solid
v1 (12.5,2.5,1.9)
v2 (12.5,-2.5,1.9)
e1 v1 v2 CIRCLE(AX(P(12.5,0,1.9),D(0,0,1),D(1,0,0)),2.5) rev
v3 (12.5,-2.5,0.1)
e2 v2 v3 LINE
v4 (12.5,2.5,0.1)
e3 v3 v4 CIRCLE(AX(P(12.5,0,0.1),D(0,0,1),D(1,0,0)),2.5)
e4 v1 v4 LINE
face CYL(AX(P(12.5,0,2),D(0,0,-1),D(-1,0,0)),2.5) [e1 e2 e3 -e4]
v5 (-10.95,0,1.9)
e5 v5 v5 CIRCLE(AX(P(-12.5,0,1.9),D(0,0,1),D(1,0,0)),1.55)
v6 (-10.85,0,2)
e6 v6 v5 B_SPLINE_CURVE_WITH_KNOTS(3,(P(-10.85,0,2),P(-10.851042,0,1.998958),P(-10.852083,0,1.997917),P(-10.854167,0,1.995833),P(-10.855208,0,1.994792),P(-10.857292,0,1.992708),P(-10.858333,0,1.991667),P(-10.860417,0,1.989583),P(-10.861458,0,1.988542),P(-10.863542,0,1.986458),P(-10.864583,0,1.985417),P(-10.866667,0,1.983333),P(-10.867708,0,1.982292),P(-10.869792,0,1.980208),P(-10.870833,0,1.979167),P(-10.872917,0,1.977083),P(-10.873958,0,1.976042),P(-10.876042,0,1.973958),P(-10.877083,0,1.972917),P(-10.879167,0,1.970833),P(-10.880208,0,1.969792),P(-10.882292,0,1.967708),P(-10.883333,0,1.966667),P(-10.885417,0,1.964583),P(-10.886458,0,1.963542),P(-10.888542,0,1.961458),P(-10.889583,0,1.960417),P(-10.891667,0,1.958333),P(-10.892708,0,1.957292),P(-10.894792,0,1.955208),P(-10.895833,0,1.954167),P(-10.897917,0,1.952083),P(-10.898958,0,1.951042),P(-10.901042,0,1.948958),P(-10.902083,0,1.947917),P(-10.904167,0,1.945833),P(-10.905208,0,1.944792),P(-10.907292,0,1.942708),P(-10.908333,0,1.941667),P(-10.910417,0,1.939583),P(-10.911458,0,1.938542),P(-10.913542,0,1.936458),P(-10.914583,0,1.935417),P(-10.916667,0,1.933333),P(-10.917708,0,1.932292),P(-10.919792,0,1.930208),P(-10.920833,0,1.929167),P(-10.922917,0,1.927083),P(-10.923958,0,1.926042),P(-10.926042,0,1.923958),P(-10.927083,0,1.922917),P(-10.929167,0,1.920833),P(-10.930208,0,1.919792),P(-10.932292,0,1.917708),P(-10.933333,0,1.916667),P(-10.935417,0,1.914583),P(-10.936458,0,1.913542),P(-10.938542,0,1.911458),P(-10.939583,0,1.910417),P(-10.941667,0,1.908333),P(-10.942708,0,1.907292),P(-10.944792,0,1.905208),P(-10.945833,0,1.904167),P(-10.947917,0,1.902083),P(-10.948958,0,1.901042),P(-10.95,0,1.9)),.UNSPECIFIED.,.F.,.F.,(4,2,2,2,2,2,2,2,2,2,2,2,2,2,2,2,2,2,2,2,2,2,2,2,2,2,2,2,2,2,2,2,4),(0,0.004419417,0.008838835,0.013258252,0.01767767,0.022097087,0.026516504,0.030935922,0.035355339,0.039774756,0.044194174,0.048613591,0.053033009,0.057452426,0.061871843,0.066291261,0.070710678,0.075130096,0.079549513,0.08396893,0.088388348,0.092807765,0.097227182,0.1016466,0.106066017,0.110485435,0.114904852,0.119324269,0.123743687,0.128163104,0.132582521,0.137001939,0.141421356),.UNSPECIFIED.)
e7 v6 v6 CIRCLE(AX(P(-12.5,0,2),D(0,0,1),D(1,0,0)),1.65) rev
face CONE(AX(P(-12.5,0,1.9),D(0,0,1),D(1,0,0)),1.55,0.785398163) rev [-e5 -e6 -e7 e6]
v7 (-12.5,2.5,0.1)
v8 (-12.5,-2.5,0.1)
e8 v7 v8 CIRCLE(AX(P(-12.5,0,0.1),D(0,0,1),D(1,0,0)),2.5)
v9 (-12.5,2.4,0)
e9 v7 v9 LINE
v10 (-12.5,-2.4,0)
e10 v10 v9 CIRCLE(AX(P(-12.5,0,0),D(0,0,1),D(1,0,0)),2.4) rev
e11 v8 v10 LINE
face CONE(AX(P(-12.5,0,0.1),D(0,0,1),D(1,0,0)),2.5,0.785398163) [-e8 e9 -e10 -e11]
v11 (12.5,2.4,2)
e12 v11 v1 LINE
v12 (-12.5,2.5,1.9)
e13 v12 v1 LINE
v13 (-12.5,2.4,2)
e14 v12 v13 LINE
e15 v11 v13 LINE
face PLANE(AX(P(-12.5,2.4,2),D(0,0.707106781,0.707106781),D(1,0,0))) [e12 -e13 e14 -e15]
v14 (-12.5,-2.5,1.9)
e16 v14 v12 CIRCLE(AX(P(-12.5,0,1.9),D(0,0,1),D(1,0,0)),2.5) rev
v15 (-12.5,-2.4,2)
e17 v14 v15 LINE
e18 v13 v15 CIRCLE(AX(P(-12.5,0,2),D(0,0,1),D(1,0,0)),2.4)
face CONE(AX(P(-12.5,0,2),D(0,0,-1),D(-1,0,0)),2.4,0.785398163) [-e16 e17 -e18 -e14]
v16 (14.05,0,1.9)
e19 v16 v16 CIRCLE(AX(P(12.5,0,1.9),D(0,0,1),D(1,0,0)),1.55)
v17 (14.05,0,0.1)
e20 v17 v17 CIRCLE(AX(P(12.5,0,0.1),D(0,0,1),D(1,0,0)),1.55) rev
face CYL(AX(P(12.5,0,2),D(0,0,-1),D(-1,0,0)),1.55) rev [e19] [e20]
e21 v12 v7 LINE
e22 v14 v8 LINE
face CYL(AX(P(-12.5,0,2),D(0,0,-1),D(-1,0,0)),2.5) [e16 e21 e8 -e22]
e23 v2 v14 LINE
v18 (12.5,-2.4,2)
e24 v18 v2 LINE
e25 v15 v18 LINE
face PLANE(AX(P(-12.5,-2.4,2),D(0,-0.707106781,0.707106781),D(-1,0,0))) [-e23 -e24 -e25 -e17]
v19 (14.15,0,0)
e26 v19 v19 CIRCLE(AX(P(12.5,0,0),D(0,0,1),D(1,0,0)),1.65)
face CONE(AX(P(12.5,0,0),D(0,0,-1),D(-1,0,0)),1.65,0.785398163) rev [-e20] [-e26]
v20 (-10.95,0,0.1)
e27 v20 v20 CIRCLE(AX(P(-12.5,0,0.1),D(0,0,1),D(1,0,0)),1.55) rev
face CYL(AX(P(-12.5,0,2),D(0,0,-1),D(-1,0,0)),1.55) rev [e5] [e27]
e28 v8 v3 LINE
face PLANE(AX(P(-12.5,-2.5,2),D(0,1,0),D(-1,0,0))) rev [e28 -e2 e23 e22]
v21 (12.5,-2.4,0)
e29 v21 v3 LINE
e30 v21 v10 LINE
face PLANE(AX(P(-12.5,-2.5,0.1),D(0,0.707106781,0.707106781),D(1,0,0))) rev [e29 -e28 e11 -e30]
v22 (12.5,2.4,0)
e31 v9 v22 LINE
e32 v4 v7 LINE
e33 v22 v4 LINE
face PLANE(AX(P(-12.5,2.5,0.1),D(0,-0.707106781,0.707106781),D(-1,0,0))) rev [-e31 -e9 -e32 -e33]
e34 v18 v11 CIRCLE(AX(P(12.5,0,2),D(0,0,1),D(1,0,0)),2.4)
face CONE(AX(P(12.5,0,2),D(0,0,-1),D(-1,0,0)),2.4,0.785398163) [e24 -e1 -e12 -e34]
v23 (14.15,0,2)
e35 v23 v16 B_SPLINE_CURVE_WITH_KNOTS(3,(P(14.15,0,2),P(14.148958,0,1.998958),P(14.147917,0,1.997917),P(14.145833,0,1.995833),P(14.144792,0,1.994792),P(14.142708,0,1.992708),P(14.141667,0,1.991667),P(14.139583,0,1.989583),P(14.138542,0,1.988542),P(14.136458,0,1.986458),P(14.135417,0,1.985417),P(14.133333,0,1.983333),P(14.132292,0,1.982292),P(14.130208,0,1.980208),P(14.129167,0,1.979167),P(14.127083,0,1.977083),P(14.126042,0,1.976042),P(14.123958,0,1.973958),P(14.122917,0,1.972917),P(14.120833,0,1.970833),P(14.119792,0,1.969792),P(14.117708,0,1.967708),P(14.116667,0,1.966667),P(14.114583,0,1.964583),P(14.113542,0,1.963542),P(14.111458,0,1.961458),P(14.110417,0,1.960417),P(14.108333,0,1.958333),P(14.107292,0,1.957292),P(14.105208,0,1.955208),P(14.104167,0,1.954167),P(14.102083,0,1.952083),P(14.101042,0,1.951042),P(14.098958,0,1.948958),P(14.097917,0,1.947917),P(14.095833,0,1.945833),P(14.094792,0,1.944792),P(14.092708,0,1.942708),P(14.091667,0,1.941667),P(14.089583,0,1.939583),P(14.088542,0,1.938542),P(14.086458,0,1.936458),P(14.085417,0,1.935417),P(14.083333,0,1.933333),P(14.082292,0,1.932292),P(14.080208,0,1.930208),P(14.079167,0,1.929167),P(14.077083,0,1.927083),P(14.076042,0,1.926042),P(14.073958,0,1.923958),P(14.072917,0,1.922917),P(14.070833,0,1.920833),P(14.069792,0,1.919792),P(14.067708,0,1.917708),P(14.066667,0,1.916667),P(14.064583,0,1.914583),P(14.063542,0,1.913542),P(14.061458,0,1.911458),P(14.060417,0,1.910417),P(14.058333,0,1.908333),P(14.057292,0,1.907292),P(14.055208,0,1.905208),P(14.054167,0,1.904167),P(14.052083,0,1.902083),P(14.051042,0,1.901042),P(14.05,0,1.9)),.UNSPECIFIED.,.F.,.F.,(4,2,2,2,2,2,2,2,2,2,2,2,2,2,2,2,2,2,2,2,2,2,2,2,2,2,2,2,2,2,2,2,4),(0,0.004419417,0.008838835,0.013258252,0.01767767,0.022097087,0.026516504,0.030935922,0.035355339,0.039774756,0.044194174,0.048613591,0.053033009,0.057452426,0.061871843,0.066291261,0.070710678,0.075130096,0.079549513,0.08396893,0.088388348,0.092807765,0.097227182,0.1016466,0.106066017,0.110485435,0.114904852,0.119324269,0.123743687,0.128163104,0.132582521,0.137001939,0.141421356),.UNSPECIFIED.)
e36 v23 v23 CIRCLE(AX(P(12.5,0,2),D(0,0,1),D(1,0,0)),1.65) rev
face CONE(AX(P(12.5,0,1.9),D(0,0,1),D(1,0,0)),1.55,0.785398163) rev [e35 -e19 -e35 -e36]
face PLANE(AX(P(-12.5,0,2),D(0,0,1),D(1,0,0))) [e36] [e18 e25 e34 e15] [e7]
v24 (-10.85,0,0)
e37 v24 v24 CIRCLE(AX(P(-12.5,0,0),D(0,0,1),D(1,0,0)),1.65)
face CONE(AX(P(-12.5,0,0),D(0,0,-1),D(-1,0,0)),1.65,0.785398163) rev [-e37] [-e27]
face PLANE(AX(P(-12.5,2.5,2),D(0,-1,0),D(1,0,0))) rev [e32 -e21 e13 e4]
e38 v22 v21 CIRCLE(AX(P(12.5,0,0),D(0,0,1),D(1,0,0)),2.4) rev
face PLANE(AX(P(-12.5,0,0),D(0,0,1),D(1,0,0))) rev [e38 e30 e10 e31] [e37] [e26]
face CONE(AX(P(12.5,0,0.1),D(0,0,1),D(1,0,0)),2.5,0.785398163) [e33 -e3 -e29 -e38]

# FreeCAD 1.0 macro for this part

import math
import FreeCAD as App
import Part
import Sketcher
Q = App.Units.Quantity


def edges_at(feature, points):
    """Names of the edges that pass closest to the given points."""
    edges = feature.Shape.Edges
    near = lambda p: min(range(len(edges)), key=lambda i: edges[i].distToShape(Part.Vertex(*p))[0])
    return sorted({f"Edge{near(p) + 1}" for p in points})

doc = App.newDocument("Part")
body = doc.addObject("PartDesign::Body", "Body")

sketch1 = body.newObject("Sketcher::SketchObject", "Sketch")
sketch1.AttachmentSupport = (doc.getObject("XY_Plane"), [""])
sketch1.MapMode = "FlatFace"
sketch1.addGeometry([
    Part.LineSegment(App.Vector(12.5, 2.5, 0), App.Vector(-12.5, 2.5, 0)),
    Part.ArcOfCircle(Part.Circle(App.Vector(-12.5, 0, 0), App.Vector(0, 0, 1), 2.5), math.radians(90), math.radians(270)),
    Part.LineSegment(App.Vector(-12.5, -2.5, 0), App.Vector(12.5, -2.5, 0)),
    Part.ArcOfCircle(Part.Circle(App.Vector(12.5, 0, 0), App.Vector(0, 0, 1), 2.5), math.radians(-90), math.radians(90)),
    Part.Circle(App.Vector(12.5, 0, 0), App.Vector(0, 0, 1), 1.6),
    Part.Circle(App.Vector(-12.5, 0, 0), App.Vector(0, 0, 1), 1.6),
], False)
sketch1.addConstraint([
    Sketcher.Constraint("Tangent", 0, 2, 1, 1),
    Sketcher.Constraint("Tangent", 1, 2, 2, 1),
    Sketcher.Constraint("Tangent", 2, 2, 3, 1),
    Sketcher.Constraint("Tangent", 3, 2, 0, 1),
    Sketcher.Constraint("Horizontal", 0),
    Sketcher.Constraint("Horizontal", 2),
    Sketcher.Constraint("Coincident", 4, 3, 3, 3),
    Sketcher.Constraint("Coincident", 5, 3, 1, 3),
    Sketcher.Constraint("Equal", 4, 5),
    Sketcher.Constraint("Symmetric", 1, 3, 3, 3, -1, 1),
    Sketcher.Constraint("Diameter", 4, Q("3.1 mm")),
    Sketcher.Constraint("Radius", 1, Q("2.5 mm")),
    Sketcher.Constraint("DistanceX", 0, 2, 0, 1, Q("25 mm")),
])
pad1 = body.newObject("PartDesign::Pad", "Pad")
pad1.Profile = sketch1
pad1.Length = 2
doc.recompute()

chamfer = body.newObject("PartDesign::Chamfer", "Chamfer")
chamfer.Base = (pad1, edges_at(pad1, [
    (-14.05, 0, 0),
    (-14.05, 0, 2),
    (15, 0, 2),
    (10.95, 0, 0),
    (10.95, 0, 2),
    (0, 2.5, 2),
    (-15, 0, 2),
    (0, 2.5, 0),
    (15, 0, 0),
    (0, -2.5, 0),
    (-15, 0, 0),
    (0, -2.5, 2),
]))
chamfer.Size = 0.1

doc.recompute()
